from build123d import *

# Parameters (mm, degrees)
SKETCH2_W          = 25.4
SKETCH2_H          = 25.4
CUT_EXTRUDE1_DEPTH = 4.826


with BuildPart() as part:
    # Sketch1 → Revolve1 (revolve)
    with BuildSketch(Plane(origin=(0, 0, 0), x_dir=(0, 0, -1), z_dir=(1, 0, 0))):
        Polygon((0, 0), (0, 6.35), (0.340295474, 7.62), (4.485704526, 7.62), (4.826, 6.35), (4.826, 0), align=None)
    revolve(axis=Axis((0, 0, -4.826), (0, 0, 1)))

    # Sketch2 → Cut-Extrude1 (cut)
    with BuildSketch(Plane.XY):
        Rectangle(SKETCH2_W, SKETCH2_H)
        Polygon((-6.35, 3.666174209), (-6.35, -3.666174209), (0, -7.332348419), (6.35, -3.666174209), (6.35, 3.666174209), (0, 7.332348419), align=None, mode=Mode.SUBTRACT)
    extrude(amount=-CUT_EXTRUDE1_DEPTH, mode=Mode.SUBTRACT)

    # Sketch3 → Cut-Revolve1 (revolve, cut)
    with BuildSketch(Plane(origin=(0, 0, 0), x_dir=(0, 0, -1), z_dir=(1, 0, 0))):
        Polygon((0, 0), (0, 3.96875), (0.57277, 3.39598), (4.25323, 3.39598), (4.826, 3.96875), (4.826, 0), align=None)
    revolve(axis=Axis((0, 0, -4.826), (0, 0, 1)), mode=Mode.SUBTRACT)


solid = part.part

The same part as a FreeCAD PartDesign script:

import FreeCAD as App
import Part
import Sketcher
from FreeCAD import Vector
Q = App.Units.Quantity


def add_polygon(sketch, points):
    """Adds a closed chain of lines whose ends are joined by coincident constraints."""
    first, n = sketch.GeometryCount, len(points)
    for a, b in zip(points, points[1:] + points[:1]):
        sketch.addGeometry(Part.LineSegment(App.Vector(*a, 0), App.Vector(*b, 0)), False)
    for i in range(n):
        sketch.addConstraint(Sketcher.Constraint("Coincident", first + i, 2, first + (i + 1) % n, 1))

doc = App.newDocument("Part")
body = doc.addObject("PartDesign::Body", "Body")

# Sketch on YZ plane
sketch1 = body.newObject("Sketcher::SketchObject", "Sketch")
sketch1.AttachmentSupport = (doc.getObject("YZ_Plane"), [""])
sketch1.MapMode = "FlatFace"
add_polygon(sketch1, [(6.35, 0), (0, 0), (0, -4.826), (6.35, -4.826), (7.62, -4.485705), (7.62, -0.340295)])  # lines 0-5
sketch1.addConstraint(Sketcher.Constraint("Horizontal", 0))
sketch1.addConstraint(Sketcher.Constraint("Vertical", 1))
sketch1.addConstraint(Sketcher.Constraint("Horizontal", 2))
sketch1.addConstraint(Sketcher.Constraint("Vertical", 4))
sketch1.addConstraint(Sketcher.Constraint("Coincident", 0, 2, -1, 1))
sketch1.addConstraint(Sketcher.Constraint("Vertical", 2, 2, 5, 2))
sketch1.addConstraint(Sketcher.Constraint("Equal", 3, 5))
sketch1.addConstraint(Sketcher.Constraint("Angle", 3, Q("15 deg")))
sketch1.addConstraint(Sketcher.Constraint("DistanceX", 0, 2, 0, 1, Q("0.25 in")))
sketch1.addConstraint(Sketcher.Constraint("DistanceY", 1, 2, 1, 1, Q("0.19 in")))
sketch1.addConstraint(Sketcher.Constraint("DistanceX", -1, 1, 3, 2, Q("0.3 in")))
revolution = body.newObject("PartDesign::Revolution", "Revolution")
revolution.Profile = sketch1
revolution.ReferenceAxis = (sketch1, ["V_Axis"])
revolution.Angle = 360

# Sketch on XY plane
sketch2 = body.newObject("Sketcher::SketchObject", "Sketch001")
sketch2.AttachmentSupport = (doc.getObject("XY_Plane"), [""])
sketch2.MapMode = "FlatFace"
add_polygon(sketch2, [(-12.7, 12.7), (-12.7, -12.7), (12.7, -12.7), (12.7, 12.7)])  # lines 0-3
add_polygon(sketch2, [(-6.35, -3.666174), (-6.35, 3.666174), (0, 7.332348), (6.35, 3.666174), (6.35, -3.666174), (0, -7.332348)])  # lines 4-9
sketch2.addConstraint(Sketcher.Constraint("Vertical", 0))
sketch2.addConstraint(Sketcher.Constraint("Horizontal", 1))
sketch2.addConstraint(Sketcher.Constraint("Vertical", 2))
sketch2.addConstraint(Sketcher.Constraint("Horizontal", 3))
sketch2.addConstraint(Sketcher.Constraint("Vertical", 4))
sketch2.addConstraint(Sketcher.Constraint("Vertical", 7))
sketch2.addConstraint(Sketcher.Constraint("Symmetric", 0, 2, 2, 2, -1, 1))
sketch2.addConstraint(Sketcher.Constraint("Symmetric", 4, 2, 7, 2, -1, 1))
sketch2.addConstraint(Sketcher.Constraint("Symmetric", 5, 2, 8, 2, -1, 1))
sketch2.addConstraint(Sketcher.Constraint("PointOnObject", 5, 2, -2))
sketch2.addConstraint(Sketcher.Constraint("Parallel", 6, 9))
sketch2.addConstraint(Sketcher.Constraint("Horizontal", 4, 2, 6, 2))
sketch2.addConstraint(Sketcher.Constraint("Equal", 3, 0))
sketch2.addConstraint(Sketcher.Constraint("DistanceX", 1, 1, 1, 2, Q("1 in")))
sketch2.addConstraint(Sketcher.Constraint("Angle", 5, Q("30 deg")))
sketch2.addConstraint(Sketcher.Constraint("DistanceX", 4, 2, 6, 2, Q("0.5 in")))
sketch2.addConstraint(Sketcher.Constraint("DistanceY", 4, 1, 4, 2, 7.332348))
pocket1 = body.newObject("PartDesign::Pocket", "Pocket")
pocket1.Profile = sketch2
pocket1.Length = Q("0.19 in")

# Sketch on YZ plane
sketch3 = body.newObject("Sketcher::SketchObject", "Sketch002")
sketch3.AttachmentSupport = (doc.getObject("YZ_Plane"), [""])
sketch3.MapMode = "FlatFace"
add_polygon(sketch3, [(3.96875, 0), (0, 0), (0, -4.826), (3.96875, -4.826), (3.39598, -4.25323), (3.39598, -0.57277)])  # lines 0-5
sketch3.addConstraint(Sketcher.Constraint("Horizontal", 0))
sketch3.addConstraint(Sketcher.Constraint("Vertical", 1))
sketch3.addConstraint(Sketcher.Constraint("Horizontal", 2))
sketch3.addConstraint(Sketcher.Constraint("Vertical", 4))
sketch3.addConstraint(Sketcher.Constraint("Coincident", 0, 2, -1, 1))
sketch3.addConstraint(Sketcher.Constraint("Perpendicular", 3, 5))
sketch3.addConstraint(Sketcher.Constraint("Vertical", 2, 2, 5, 2))
sketch3.addConstraint(Sketcher.Constraint("Equal", 3, 5))
sketch3.addConstraint(Sketcher.Constraint("DistanceY", 1, 2, 1, 1, Q("0.19 in")))
sketch3.addConstraint(Sketcher.Constraint("DistanceX", 0, 2, 0, 1, Q("0.15625 in")))
sketch3.addConstraint(Sketcher.Constraint("DistanceY", 4, 1, 4, 2, Q("0.1449 in")))
groove = body.newObject("PartDesign::Groove", "Groove")
groove.Profile = sketch3
groove.ReferenceAxis = (sketch3, ["V_Axis"])
groove.Angle = 360

doc.recompute()
